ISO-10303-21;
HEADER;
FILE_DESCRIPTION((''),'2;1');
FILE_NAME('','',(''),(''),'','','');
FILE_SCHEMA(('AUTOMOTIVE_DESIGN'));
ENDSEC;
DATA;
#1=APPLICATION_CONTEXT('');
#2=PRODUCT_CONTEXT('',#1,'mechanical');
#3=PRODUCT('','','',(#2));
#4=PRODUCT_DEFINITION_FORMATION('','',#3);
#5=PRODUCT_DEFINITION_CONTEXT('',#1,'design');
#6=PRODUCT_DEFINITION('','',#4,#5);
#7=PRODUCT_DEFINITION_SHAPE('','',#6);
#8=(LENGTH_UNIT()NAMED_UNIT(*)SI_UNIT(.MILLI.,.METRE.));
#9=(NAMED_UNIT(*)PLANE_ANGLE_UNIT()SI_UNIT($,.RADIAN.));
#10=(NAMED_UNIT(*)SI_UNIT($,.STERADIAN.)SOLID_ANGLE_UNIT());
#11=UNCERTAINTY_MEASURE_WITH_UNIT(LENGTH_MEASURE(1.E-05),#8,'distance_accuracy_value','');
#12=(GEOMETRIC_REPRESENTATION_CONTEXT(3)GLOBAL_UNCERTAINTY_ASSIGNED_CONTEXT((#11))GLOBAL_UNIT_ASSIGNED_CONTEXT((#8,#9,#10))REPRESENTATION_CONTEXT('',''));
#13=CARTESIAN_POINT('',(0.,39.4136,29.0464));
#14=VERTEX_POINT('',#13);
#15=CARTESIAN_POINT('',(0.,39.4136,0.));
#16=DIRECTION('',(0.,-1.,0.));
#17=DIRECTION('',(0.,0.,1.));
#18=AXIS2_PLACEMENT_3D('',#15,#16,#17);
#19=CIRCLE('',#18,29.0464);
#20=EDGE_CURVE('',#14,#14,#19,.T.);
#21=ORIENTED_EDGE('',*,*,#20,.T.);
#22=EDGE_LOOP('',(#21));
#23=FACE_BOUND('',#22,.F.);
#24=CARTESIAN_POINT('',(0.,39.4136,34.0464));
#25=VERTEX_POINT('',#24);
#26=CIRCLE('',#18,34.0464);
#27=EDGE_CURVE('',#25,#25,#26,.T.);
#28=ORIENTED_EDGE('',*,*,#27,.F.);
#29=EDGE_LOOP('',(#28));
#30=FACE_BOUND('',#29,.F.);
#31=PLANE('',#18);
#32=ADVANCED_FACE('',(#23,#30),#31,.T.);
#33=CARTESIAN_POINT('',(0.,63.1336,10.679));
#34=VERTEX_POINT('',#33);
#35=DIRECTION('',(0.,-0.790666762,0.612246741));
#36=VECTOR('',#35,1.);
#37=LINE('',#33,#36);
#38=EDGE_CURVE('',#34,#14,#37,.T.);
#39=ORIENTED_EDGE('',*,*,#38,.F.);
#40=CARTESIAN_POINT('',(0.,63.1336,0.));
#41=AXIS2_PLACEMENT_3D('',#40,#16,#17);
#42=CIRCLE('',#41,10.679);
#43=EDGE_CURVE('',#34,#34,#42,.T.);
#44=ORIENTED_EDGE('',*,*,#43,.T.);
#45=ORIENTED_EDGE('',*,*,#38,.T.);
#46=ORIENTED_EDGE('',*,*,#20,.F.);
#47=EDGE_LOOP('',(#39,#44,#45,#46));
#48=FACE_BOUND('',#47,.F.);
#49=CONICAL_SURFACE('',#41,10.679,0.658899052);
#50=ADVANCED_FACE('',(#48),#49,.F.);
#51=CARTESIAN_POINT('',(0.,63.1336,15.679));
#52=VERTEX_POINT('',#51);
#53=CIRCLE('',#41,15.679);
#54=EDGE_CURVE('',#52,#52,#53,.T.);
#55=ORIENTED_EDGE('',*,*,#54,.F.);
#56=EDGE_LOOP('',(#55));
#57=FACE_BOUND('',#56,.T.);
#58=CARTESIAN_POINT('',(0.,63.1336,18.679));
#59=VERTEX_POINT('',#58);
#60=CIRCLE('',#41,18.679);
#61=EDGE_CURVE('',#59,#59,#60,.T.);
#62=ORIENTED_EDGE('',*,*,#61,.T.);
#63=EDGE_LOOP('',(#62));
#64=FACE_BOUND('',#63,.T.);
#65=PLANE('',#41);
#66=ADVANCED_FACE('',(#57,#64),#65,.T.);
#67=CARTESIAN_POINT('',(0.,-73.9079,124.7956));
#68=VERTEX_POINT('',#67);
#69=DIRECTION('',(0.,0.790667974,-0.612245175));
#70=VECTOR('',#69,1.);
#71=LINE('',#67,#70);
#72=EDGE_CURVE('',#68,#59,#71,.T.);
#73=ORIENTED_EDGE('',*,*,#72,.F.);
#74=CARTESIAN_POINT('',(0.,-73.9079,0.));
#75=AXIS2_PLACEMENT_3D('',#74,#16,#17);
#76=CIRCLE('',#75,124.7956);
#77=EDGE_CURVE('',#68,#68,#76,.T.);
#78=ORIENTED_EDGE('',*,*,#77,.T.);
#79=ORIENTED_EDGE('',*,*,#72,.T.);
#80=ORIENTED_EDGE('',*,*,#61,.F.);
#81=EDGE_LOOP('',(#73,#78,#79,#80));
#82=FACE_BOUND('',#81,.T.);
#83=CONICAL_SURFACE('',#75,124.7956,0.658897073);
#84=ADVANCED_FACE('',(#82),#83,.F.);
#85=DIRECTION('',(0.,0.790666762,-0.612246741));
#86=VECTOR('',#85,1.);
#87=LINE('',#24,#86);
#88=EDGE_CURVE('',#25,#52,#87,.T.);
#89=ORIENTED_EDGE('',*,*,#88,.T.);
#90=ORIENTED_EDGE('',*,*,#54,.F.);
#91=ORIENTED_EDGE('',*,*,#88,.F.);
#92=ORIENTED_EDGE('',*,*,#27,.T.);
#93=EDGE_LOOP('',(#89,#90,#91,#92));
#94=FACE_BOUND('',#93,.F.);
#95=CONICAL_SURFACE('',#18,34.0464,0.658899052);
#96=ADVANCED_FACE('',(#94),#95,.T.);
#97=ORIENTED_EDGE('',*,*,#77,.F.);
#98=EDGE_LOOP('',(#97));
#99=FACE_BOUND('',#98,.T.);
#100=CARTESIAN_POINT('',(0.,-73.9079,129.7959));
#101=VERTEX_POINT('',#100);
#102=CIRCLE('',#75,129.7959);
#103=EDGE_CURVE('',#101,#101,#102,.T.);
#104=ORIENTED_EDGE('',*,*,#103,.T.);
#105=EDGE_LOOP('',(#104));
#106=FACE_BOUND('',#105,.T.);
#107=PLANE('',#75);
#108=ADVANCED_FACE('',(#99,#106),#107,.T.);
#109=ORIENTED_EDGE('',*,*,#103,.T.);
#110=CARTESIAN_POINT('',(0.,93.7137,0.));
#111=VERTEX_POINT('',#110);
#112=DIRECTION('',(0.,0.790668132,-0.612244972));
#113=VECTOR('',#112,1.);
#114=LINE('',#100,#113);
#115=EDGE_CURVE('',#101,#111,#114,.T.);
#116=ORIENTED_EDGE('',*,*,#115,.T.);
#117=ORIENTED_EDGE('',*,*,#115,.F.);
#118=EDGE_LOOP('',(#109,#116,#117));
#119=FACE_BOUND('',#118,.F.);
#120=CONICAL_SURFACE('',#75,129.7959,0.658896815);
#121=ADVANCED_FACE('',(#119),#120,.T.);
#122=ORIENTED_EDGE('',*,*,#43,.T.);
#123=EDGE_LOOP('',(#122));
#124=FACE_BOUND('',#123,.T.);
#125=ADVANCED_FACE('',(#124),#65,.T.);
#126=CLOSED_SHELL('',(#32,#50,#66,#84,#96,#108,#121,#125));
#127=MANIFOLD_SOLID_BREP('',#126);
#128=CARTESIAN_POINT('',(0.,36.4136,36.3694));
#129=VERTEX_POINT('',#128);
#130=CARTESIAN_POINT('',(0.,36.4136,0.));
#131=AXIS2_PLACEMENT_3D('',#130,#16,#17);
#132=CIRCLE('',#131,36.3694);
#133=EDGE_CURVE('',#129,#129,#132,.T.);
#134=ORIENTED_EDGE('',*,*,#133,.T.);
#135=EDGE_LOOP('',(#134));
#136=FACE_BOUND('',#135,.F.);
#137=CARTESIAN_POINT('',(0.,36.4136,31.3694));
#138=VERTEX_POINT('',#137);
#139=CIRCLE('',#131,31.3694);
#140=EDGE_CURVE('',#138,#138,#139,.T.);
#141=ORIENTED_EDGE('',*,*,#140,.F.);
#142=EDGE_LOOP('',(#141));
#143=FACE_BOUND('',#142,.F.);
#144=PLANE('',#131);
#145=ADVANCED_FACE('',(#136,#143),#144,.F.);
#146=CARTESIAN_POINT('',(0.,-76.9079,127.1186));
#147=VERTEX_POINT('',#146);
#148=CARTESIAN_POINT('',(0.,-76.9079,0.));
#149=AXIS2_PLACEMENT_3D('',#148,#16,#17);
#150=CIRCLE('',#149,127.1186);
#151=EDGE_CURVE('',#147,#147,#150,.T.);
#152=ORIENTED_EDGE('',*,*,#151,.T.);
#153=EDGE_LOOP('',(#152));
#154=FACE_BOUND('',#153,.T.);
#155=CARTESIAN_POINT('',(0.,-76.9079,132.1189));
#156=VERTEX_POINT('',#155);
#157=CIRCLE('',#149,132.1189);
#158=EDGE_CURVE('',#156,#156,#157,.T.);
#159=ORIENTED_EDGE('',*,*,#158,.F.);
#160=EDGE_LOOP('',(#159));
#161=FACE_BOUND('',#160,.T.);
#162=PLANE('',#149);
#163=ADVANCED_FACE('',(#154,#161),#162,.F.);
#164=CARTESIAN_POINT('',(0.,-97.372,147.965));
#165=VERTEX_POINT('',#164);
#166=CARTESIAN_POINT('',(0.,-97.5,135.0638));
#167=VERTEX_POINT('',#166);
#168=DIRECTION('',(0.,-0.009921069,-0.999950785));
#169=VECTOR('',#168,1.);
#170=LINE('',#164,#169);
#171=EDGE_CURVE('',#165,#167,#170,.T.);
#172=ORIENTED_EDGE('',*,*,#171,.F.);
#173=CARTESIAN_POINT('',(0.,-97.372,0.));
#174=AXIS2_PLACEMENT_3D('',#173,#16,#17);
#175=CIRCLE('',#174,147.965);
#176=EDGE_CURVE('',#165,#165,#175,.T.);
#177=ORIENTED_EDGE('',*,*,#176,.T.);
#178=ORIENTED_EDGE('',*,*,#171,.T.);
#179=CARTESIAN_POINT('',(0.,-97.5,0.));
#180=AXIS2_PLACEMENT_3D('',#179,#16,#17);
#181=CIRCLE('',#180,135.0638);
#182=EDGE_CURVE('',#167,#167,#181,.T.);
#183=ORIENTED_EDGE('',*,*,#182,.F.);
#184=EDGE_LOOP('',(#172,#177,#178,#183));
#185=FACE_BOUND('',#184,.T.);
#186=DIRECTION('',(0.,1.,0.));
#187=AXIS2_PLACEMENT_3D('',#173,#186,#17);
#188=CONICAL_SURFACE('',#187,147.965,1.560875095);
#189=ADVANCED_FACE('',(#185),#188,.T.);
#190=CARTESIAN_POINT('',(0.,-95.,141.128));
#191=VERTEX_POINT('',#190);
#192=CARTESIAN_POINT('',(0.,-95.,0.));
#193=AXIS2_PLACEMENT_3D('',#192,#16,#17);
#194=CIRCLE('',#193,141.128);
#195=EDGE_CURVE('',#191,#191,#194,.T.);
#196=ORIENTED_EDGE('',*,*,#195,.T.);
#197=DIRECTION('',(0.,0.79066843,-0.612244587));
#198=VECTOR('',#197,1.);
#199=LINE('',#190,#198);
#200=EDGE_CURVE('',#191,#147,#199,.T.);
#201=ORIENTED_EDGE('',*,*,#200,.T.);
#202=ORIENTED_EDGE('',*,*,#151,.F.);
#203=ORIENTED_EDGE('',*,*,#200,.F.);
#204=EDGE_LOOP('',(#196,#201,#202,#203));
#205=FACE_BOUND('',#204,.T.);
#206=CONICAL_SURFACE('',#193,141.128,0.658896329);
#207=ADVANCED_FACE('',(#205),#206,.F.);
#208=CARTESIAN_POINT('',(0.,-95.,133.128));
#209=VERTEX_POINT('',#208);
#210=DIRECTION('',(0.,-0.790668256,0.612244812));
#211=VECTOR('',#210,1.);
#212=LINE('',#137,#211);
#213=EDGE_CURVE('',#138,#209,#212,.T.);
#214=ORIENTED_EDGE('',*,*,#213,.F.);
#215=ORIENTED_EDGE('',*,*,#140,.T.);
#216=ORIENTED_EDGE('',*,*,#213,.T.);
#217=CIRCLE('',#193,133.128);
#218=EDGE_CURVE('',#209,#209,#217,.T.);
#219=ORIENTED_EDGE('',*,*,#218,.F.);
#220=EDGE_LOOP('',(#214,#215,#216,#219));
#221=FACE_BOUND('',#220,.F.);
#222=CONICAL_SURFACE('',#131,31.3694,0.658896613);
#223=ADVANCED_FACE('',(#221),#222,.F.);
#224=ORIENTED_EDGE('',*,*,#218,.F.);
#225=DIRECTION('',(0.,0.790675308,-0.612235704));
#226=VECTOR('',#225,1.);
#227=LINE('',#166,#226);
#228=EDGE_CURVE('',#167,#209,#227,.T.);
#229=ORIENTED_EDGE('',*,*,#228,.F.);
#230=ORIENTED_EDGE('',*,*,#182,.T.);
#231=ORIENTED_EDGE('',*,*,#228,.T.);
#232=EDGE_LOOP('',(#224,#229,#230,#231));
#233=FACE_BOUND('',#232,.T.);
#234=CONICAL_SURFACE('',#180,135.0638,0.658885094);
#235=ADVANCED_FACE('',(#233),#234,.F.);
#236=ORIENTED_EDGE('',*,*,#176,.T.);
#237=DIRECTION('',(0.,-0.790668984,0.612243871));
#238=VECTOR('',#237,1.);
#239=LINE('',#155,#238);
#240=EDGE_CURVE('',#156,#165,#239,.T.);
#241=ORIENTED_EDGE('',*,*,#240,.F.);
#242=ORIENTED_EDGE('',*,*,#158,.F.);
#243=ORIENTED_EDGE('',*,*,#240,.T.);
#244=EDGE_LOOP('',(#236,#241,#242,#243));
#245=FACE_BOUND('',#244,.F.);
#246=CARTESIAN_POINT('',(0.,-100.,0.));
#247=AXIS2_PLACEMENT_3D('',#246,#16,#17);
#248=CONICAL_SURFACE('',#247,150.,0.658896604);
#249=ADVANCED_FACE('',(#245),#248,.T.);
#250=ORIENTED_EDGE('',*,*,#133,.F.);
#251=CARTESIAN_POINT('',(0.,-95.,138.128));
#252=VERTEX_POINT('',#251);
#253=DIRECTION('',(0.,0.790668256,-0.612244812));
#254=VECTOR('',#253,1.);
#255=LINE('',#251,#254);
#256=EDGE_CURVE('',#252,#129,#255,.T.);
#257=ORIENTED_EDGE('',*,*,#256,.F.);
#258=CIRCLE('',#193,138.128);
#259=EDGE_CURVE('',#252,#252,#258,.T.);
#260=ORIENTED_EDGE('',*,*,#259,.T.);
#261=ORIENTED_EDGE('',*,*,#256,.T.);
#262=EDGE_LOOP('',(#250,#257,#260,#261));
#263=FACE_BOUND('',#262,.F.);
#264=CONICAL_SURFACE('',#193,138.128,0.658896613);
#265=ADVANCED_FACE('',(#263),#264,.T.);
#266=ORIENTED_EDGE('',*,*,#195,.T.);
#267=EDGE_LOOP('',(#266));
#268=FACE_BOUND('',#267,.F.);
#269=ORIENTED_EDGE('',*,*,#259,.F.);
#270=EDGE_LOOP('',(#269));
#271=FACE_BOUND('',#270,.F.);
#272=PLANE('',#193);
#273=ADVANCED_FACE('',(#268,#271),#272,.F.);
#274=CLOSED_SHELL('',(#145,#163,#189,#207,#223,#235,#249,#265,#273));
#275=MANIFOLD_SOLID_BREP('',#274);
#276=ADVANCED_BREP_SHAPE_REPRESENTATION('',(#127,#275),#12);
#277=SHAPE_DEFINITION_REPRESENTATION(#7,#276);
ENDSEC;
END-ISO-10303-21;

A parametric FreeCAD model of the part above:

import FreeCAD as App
import Part
import Sketcher
from FreeCAD import Vector
Q = App.Units.Quantity


def add_polygon(sketch, points):
    """Adds a closed chain of lines whose ends are joined by coincident constraints."""
    first, n = sketch.GeometryCount, len(points)
    for a, b in zip(points, points[1:] + points[:1]):
        sketch.addGeometry(Part.LineSegment(App.Vector(*a, 0), App.Vector(*b, 0)), False)
    for i in range(n):
        sketch.addConstraint(Sketcher.Constraint("Coincident", first + i, 2, first + (i + 1) % n, 1))

doc = App.newDocument("Part")
body = doc.addObject("PartDesign::Body", "Body")
body.AllowCompound = True

# Sketch on YZ plane
sketch1 = doc.addObject("Sketcher::SketchObject", "Sketch")
body.addObject(sketch1)
sketch1.AttachmentSupport = (doc.YZ_Plane, [""])
sketch1.MapMode = "FlatFace"
add_polygon(sketch1, [(63.1, 10.7), (63.1, 0), (93.7, 0), (-73.9, 129.8), (-73.9, 124.8), (63.1, 18.7), (63.1, 15.7), (39.4, 34), (39.4, 29)])  # lines 0-8
add_polygon(sketch1, [(-97.5, 135.1), (-95, 133.1), (36.4, 31.4), (36.4, 36.4), (-95, 138.1), (-95, 141.1), (-76.9, 127.1), (-76.9, 132.1), (-97.4, 148)])  # lines 9-17
sketch1.addConstraint(Sketcher.Constraint("Vertical", 0))
sketch1.addConstraint(Sketcher.Constraint("Horizontal", 1))
sketch1.addConstraint(Sketcher.Constraint("Vertical", 3))
sketch1.addConstraint(Sketcher.Constraint("Vertical", 5))
sketch1.addConstraint(Sketcher.Constraint("Vertical", 7))
sketch1.addConstraint(Sketcher.Constraint("Vertical", 11))
sketch1.addConstraint(Sketcher.Constraint("Vertical", 13))
sketch1.addConstraint(Sketcher.Constraint("Vertical", 15))
sketch1.addConstraint(Sketcher.Constraint("PointOnObject", 0, 2, -1))
sketch1.addConstraint(Sketcher.Constraint("Parallel", 2, 4))
sketch1.addConstraint(Sketcher.Constraint("Parallel", 4, 6))
sketch1.addConstraint(Sketcher.Constraint("Parallel", 6, 8))
sketch1.addConstraint(Sketcher.Constraint("Parallel", 8, 9))
sketch1.addConstraint(Sketcher.Constraint("Parallel", 9, 10))
sketch1.addConstraint(Sketcher.Constraint("Parallel", 10, 12))
sketch1.addConstraint(Sketcher.Constraint("Parallel", 12, 14))
sketch1.addConstraint(Sketcher.Constraint("Parallel", 14, 16))
sketch1.addConstraint(Sketcher.Constraint("Vertical", 0, 2, 4, 2))
sketch1.addConstraint(Sketcher.Constraint("Vertical", 9, 2, 12, 2))
sketch1.addConstraint(Sketcher.Constraint("Equal", 7, 11))
sketch1.addConstraint(Sketcher.Constraint("Equal", 5, 13))
sketch1.addConstraint(Sketcher.Constraint("Equal", 3, 15))
sketch1.addConstraint(Sketcher.Constraint("DistanceY", 5, 2, 5, 1, Q("3 mm")))
sketch1.addConstraint(Sketcher.Constraint("DistanceY", 7, 2, 7, 1, Q("5 mm")))
sketch1.addConstraint(Sketcher.Constraint("Distance", 6, Q("30 mm")))
sketch1.addConstraint(Sketcher.Constraint("DistanceX", 10, 2, 7, 2, Q("3 mm")))
sketch1.addConstraint(Sketcher.Constraint("DistanceX", 14, 2, 3, 2, Q("3 mm")))
sketch1.addConstraint(Sketcher.Constraint("Distance", 2, Q("212 mm")))
sketch1.addConstraint(Sketcher.Constraint("DistanceY", 3, 2, 3, 1, Q("5.0003 mm")))
sketch1.addConstraint(Sketcher.Constraint("DistanceY", -1, 1, 13, 2, Q("141.128 mm")))
sketch1.addConstraint(Sketcher.Constraint("DistanceX", 9, 2, -1, 1, Q("95 mm")))
sketch1.addConstraint(Sketcher.Constraint("DistanceX", 1, 1, 1, 2, Q("30.58 mm")))
sketch1.addConstraint(Sketcher.Constraint("DistanceX", 17, 2, -1, 1, Q("97.5 mm")))
sketch1.addConstraint(Sketcher.Constraint("DistanceX", 6, 2, 1, 2, Q("54.3 mm")))
sketch1.addConstraint(Sketcher.Constraint("Distance", 14, Q("22.882 mm")))
sketch1.addConstraint(Sketcher.Constraint("Distance", 16, Q("25.882 mm")))
revolution = doc.addObject("PartDesign::Revolution", "Revolution")
body.addObject(revolution)
revolution.Profile = sketch1
revolution.ReferenceAxis = (sketch1, ["H_Axis"])
revolution.Angle = 360

doc.recompute()
